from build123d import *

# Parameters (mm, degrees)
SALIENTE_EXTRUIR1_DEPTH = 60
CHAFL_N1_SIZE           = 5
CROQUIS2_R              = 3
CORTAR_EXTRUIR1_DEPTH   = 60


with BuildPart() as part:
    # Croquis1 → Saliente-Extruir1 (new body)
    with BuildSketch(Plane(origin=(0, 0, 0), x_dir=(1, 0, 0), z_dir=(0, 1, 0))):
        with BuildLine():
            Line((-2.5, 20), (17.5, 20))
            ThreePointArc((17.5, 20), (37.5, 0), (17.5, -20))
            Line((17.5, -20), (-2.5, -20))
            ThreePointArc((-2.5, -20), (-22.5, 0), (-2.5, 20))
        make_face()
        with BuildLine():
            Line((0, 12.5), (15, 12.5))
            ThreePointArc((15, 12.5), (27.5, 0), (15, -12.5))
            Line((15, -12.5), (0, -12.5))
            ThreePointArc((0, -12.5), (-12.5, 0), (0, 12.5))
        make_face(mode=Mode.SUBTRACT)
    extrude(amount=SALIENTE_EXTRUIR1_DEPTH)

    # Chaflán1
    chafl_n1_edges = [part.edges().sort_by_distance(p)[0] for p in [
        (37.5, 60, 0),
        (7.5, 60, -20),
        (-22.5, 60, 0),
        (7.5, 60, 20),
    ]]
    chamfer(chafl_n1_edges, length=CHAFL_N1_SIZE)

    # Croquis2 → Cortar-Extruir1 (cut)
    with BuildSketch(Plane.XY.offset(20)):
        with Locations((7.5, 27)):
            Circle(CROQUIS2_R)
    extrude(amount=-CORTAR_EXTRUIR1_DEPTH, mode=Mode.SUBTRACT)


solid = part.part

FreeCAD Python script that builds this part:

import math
import FreeCAD as App
import Part
import Sketcher
from FreeCAD import Vector


def edges_at(feature, points):
    """Names of the edges that pass closest to the given points."""
    edges = feature.Shape.Edges
    near = lambda p: min(range(len(edges)), key=lambda i: edges[i].distToShape(Part.Vertex(*p))[0])
    return sorted({f"Edge{near(p) + 1}" for p in points})

doc = App.newDocument("Part")
params = doc.addObject("Spreadsheet::Sheet", "Params")
for row, (alias, value) in enumerate([
    ("sketch1_radius", "20 mm"),
    ("sketch1_radius2", "12.5 mm"),
    ("sketch1_width", "20 mm"),
    ("sketch1_width2", "15 mm"),
    ("pad1_length", "60 mm"),
    ("chamfer_size", "5 mm"),
    ("sketch2_diameter", "6 mm"),
    ("pocket1_length", "60 mm"),
], start=1):
    params.set(f"A{row}", alias)
    params.set(f"B{row}", "=" + value)
    params.setAlias(f"B{row}", alias)

body = doc.addObject("PartDesign::Body", "Body")

sketch1 = body.newObject("Sketcher::SketchObject", "Sketch")
sketch1.AttachmentSupport = (doc.getObject("XZ_Plane"), [""])
sketch1.MapMode = "FlatFace"
sketch1.addGeometry([
    Part.LineSegment(Vector(18, -20, 0), Vector(-2, -20, 0)),
    Part.ArcOfCircle(Part.Circle(Vector(-2, 0, 0), Vector(0, 0, 1), 20), math.radians(90), math.radians(270)),
    Part.LineSegment(Vector(-2, 20, 0), Vector(18, 20, 0)),
    Part.ArcOfCircle(Part.Circle(Vector(18, 0, 0), Vector(0, 0, 1), 20), math.radians(-90), math.radians(90)),
    Part.LineSegment(Vector(0, -12, 0), Vector(15, -12, 0)),
    Part.ArcOfCircle(Part.Circle(Vector(15, 0, 0), Vector(0, 0, 1), 12), math.radians(-90), math.radians(90)),
    Part.LineSegment(Vector(15, 12, 0), Vector(0, 12, 0)),
    Part.ArcOfCircle(Part.Circle(Vector(0, 0, 0), Vector(0, 0, 1), 12), math.radians(90), math.radians(270)),
], False)
sketch1.addConstraint([
    Sketcher.Constraint("Tangent", 0, 2, 1, 2),
    Sketcher.Constraint("Tangent", 1, 1, 2, 1),
    Sketcher.Constraint("Tangent", 2, 2, 3, 2),
    Sketcher.Constraint("Tangent", 3, 1, 0, 1),
    Sketcher.Constraint("Tangent", 4, 2, 5, 1),
    Sketcher.Constraint("Tangent", 5, 2, 6, 1),
    Sketcher.Constraint("Tangent", 6, 2, 7, 1),
    Sketcher.Constraint("Tangent", 7, 2, 4, 1),
    Sketcher.Constraint("Horizontal", 0),
    Sketcher.Constraint("Horizontal", 2),
    Sketcher.Constraint("Horizontal", 4),
    Sketcher.Constraint("Horizontal", 6),
    Sketcher.Constraint("Coincident", 7, 3, -1, 1),
    Sketcher.Constraint("PointOnObject", 1, 3, -1),
    Sketcher.Constraint("Radius", 1, 20.0),
    Sketcher.Constraint("Radius", 5, 12.5),
    Sketcher.Constraint("DistanceX", 0, 2, 0, 1, 20.0),
    Sketcher.Constraint("DistanceX", 4, 1, 4, 2, 15.0),
    Sketcher.Constraint("DistanceX", 1, 3, -1, 1, 2.5),
])
sketch1.setExpression("Constraints[14]", "Params.sketch1_radius")
sketch1.setExpression("Constraints[15]", "Params.sketch1_radius2")
sketch1.setExpression("Constraints[16]", "Params.sketch1_width")
sketch1.setExpression("Constraints[17]", "Params.sketch1_width2")
pad1 = body.newObject("PartDesign::Pad", "Pad")
pad1.Profile = sketch1
pad1.setExpression("Length", "Params.pad1_length")
pad1.Reversed = True
doc.recompute()

chamfer = body.newObject("PartDesign::Chamfer", "Chamfer")
chamfer.Base = (pad1, edges_at(pad1, [
    (37.5, 60, 0),
    (7.5, 60, -20),
    (-22.5, 60, 0),
    (7.5, 60, 20),
]))
chamfer.setExpression("Size", "Params.chamfer_size")

sketch2 = body.newObject("Sketcher::SketchObject", "Sketch001")
sketch2.AttachmentSupport = (doc.getObject("XY_Plane"), [""])
sketch2.MapMode = "FlatFace"
sketch2.AttachmentOffset = App.Placement(Vector(0, 0, 20), App.Rotation())
sketch2.addGeometry(Part.Circle(Vector(7.5, 27, 0), Vector(0, 0, 1), 3), False)
sketch2.addConstraint([
    Sketcher.Constraint("Diameter", 0, 6.0),
    Sketcher.Constraint("DistanceY", -1, 1, 0, 3, 27.0),
    Sketcher.Constraint("DistanceX", -1, 1, 0, 3, 7.5),
])
sketch2.setExpression("Constraints[0]", "Params.sketch2_diameter")
pocket1 = body.newObject("PartDesign::Pocket", "Pocket")
pocket1.Profile = sketch2
pocket1.setExpression("Length", "Params.pocket1_length")

doc.recompute()
